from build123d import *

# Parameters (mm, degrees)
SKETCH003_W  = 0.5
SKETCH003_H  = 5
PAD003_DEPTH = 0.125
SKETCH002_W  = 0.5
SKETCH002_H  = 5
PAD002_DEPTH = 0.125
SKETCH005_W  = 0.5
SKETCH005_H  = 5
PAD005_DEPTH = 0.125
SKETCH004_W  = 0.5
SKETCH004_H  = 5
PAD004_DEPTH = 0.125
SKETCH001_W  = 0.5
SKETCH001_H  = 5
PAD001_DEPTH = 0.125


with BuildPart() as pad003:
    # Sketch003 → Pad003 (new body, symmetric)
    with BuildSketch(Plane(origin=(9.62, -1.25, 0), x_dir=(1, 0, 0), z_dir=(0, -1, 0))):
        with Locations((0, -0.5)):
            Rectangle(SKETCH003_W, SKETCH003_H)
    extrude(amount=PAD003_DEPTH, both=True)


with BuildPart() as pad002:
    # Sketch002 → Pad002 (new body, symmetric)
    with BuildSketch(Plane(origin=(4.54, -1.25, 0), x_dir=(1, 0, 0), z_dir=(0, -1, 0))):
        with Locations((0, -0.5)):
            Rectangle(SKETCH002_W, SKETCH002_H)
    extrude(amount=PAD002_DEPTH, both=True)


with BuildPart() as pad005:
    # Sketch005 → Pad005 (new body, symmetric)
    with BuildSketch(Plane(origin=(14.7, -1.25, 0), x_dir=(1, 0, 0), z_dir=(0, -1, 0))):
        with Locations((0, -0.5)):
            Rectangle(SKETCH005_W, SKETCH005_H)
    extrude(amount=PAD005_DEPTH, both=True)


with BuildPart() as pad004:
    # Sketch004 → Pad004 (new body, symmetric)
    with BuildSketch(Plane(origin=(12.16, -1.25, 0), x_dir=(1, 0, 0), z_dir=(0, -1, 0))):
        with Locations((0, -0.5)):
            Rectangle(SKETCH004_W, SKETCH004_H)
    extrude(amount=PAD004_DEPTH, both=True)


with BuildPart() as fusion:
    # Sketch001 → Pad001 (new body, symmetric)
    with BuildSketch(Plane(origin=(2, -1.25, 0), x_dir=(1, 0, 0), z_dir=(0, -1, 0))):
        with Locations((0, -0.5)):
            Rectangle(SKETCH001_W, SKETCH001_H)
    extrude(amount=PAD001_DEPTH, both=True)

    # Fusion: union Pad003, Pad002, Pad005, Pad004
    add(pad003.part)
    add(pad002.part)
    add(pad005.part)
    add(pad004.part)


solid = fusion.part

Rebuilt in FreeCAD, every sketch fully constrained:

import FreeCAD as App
import Part
import Sketcher
Q = App.Units.Quantity

doc = App.newDocument("Part")
body = doc.addObject("PartDesign::Body", "Body")

sketch1 = body.newObject("Sketcher::SketchObject", "Sketch")
sketch1.AttachmentSupport = (doc.getObject("XZ_Plane"), [""])
sketch1.MapMode = "FlatFace"
sketch1.AttachmentOffset = App.Placement(App.Vector(0, 0, 1.25), App.Rotation())
sketch1.addGeometry([
    Part.LineSegment(App.Vector(9.37, 2, 0), App.Vector(9.37, -3, 0)),
    Part.LineSegment(App.Vector(9.37, -3, 0), App.Vector(9.87, -3, 0)),
    Part.LineSegment(App.Vector(9.87, -3, 0), App.Vector(9.87, 2, 0)),
    Part.LineSegment(App.Vector(9.87, 2, 0), App.Vector(9.37, 2, 0)),
], False)
sketch1.addConstraint([
    Sketcher.Constraint("Coincident", 0, 2, 1, 1),
    Sketcher.Constraint("Coincident", 1, 2, 2, 1),
    Sketcher.Constraint("Coincident", 2, 2, 3, 1),
    Sketcher.Constraint("Coincident", 3, 2, 0, 1),
    Sketcher.Constraint("Vertical", 0),
    Sketcher.Constraint("Horizontal", 1),
    Sketcher.Constraint("Vertical", 2),
    Sketcher.Constraint("Horizontal", 3),
    Sketcher.Constraint("DistanceY", 0, 2, 0, 1, Q("5 mm")),
    Sketcher.Constraint("DistanceX", 1, 1, 1, 2, Q("0.5 mm")),
    Sketcher.Constraint("DistanceY", 0, 2, -1, 1, Q("3 mm")),
    Sketcher.Constraint("DistanceX", -1, 1, 0, 2, Q("9.37 mm")),
])
pad1 = body.newObject("PartDesign::Pad", "Pad")
pad1.Profile = sketch1
pad1.Length = 0.25
pad1.Midplane = True
body2 = doc.addObject("PartDesign::Body", "Body001")

sketch2 = body2.newObject("Sketcher::SketchObject", "Sketch001")
sketch2.AttachmentSupport = (doc.getObject("XZ_Plane001"), [""])
sketch2.MapMode = "FlatFace"
sketch2.AttachmentOffset = App.Placement(App.Vector(0, 0, 1.25), App.Rotation())
sketch2.addGeometry([
    Part.LineSegment(App.Vector(4.29, 2, 0), App.Vector(4.29, -3, 0)),
    Part.LineSegment(App.Vector(4.29, -3, 0), App.Vector(4.79, -3, 0)),
    Part.LineSegment(App.Vector(4.79, -3, 0), App.Vector(4.79, 2, 0)),
    Part.LineSegment(App.Vector(4.79, 2, 0), App.Vector(4.29, 2, 0)),
], False)
sketch2.addConstraint([
    Sketcher.Constraint("Coincident", 0, 2, 1, 1),
    Sketcher.Constraint("Coincident", 1, 2, 2, 1),
    Sketcher.Constraint("Coincident", 2, 2, 3, 1),
    Sketcher.Constraint("Coincident", 3, 2, 0, 1),
    Sketcher.Constraint("Vertical", 0),
    Sketcher.Constraint("Horizontal", 1),
    Sketcher.Constraint("Vertical", 2),
    Sketcher.Constraint("Horizontal", 3),
    Sketcher.Constraint("DistanceY", 0, 2, 0, 1, Q("5 mm")),
    Sketcher.Constraint("DistanceX", 1, 1, 1, 2, Q("0.5 mm")),
    Sketcher.Constraint("DistanceY", 0, 2, -1, 1, Q("3 mm")),
    Sketcher.Constraint("DistanceX", -1, 1, 0, 2, Q("4.29 mm")),
])
pad2 = body2.newObject("PartDesign::Pad", "Pad001")
pad2.Profile = sketch2
pad2.Length = 0.25
pad2.Midplane = True
body3 = doc.addObject("PartDesign::Body", "Body002")

sketch3 = body3.newObject("Sketcher::SketchObject", "Sketch002")
sketch3.AttachmentSupport = (doc.getObject("XZ_Plane002"), [""])
sketch3.MapMode = "FlatFace"
sketch3.AttachmentOffset = App.Placement(App.Vector(0, 0, 1.25), App.Rotation())
sketch3.addGeometry([
    Part.LineSegment(App.Vector(14.45, 2, 0), App.Vector(14.45, -3, 0)),
    Part.LineSegment(App.Vector(14.45, -3, 0), App.Vector(14.95, -3, 0)),
    Part.LineSegment(App.Vector(14.95, -3, 0), App.Vector(14.95, 2, 0)),
    Part.LineSegment(App.Vector(14.95, 2, 0), App.Vector(14.45, 2, 0)),
], False)
sketch3.addConstraint([
    Sketcher.Constraint("Coincident", 0, 2, 1, 1),
    Sketcher.Constraint("Coincident", 1, 2, 2, 1),
    Sketcher.Constraint("Coincident", 2, 2, 3, 1),
    Sketcher.Constraint("Coincident", 3, 2, 0, 1),
    Sketcher.Constraint("Vertical", 0),
    Sketcher.Constraint("Horizontal", 1),
    Sketcher.Constraint("Vertical", 2),
    Sketcher.Constraint("Horizontal", 3),
    Sketcher.Constraint("DistanceY", 0, 2, 0, 1, Q("5 mm")),
    Sketcher.Constraint("DistanceX", 1, 1, 1, 2, Q("0.5 mm")),
    Sketcher.Constraint("DistanceY", 0, 2, -1, 1, Q("3 mm")),
    Sketcher.Constraint("DistanceX", -1, 1, 0, 2, Q("14.45 mm")),
])
pad3 = body3.newObject("PartDesign::Pad", "Pad002")
pad3.Profile = sketch3
pad3.Length = 0.25
pad3.Midplane = True
body4 = doc.addObject("PartDesign::Body", "Body003")

sketch4 = body4.newObject("Sketcher::SketchObject", "Sketch003")
sketch4.AttachmentSupport = (doc.getObject("XZ_Plane003"), [""])
sketch4.MapMode = "FlatFace"
sketch4.AttachmentOffset = App.Placement(App.Vector(0, 0, 1.25), App.Rotation())
sketch4.addGeometry([
    Part.LineSegment(App.Vector(11.91, 2, 0), App.Vector(11.91, -3, 0)),
    Part.LineSegment(App.Vector(11.91, -3, 0), App.Vector(12.41, -3, 0)),
    Part.LineSegment(App.Vector(12.41, -3, 0), App.Vector(12.41, 2, 0)),
    Part.LineSegment(App.Vector(12.41, 2, 0), App.Vector(11.91, 2, 0)),
], False)
sketch4.addConstraint([
    Sketcher.Constraint("Coincident", 0, 2, 1, 1),
    Sketcher.Constraint("Coincident", 1, 2, 2, 1),
    Sketcher.Constraint("Coincident", 2, 2, 3, 1),
    Sketcher.Constraint("Coincident", 3, 2, 0, 1),
    Sketcher.Constraint("Vertical", 0),
    Sketcher.Constraint("Horizontal", 1),
    Sketcher.Constraint("Vertical", 2),
    Sketcher.Constraint("Horizontal", 3),
    Sketcher.Constraint("DistanceY", 0, 2, 0, 1, Q("5 mm")),
    Sketcher.Constraint("DistanceX", 1, 1, 1, 2, Q("0.5 mm")),
    Sketcher.Constraint("DistanceY", 0, 2, -1, 1, Q("3 mm")),
    Sketcher.Constraint("DistanceX", -1, 1, 0, 2, Q("11.91 mm")),
])
pad4 = body4.newObject("PartDesign::Pad", "Pad003")
pad4.Profile = sketch4
pad4.Length = 0.25
pad4.Midplane = True
body5 = doc.addObject("PartDesign::Body", "Body004")
body5.AllowCompound = True

sketch5 = body5.newObject("Sketcher::SketchObject", "Sketch004")
sketch5.AttachmentSupport = (doc.getObject("XZ_Plane004"), [""])
sketch5.MapMode = "FlatFace"
sketch5.AttachmentOffset = App.Placement(App.Vector(0, 0, 1.25), App.Rotation())
sketch5.addGeometry([
    Part.LineSegment(App.Vector(1.75, 2, 0), App.Vector(1.75, -3, 0)),
    Part.LineSegment(App.Vector(1.75, -3, 0), App.Vector(2.25, -3, 0)),
    Part.LineSegment(App.Vector(2.25, -3, 0), App.Vector(2.25, 2, 0)),
    Part.LineSegment(App.Vector(2.25, 2, 0), App.Vector(1.75, 2, 0)),
], False)
sketch5.addConstraint([
    Sketcher.Constraint("Coincident", 0, 2, 1, 1),
    Sketcher.Constraint("Coincident", 1, 2, 2, 1),
    Sketcher.Constraint("Coincident", 2, 2, 3, 1),
    Sketcher.Constraint("Coincident", 3, 2, 0, 1),
    Sketcher.Constraint("Vertical", 0),
    Sketcher.Constraint("Horizontal", 1),
    Sketcher.Constraint("Vertical", 2),
    Sketcher.Constraint("Horizontal", 3),
    Sketcher.Constraint("DistanceY", 0, 2, 0, 1, Q("5 mm")),
    Sketcher.Constraint("DistanceX", 1, 1, 1, 2, Q("0.5 mm")),
    Sketcher.Constraint("DistanceY", 0, 2, -1, 1, Q("3 mm")),
    Sketcher.Constraint("DistanceX", -1, 1, 0, 2, Q("1.75 mm")),
])
pad5 = body5.newObject("PartDesign::Pad", "Pad004")
pad5.Profile = sketch5
pad5.Length = 0.25
pad5.Midplane = True
doc.recompute()

boolean = body5.newObject("PartDesign::Boolean", "Boolean")
boolean.Type = "Fuse"
boolean.addObjects([body])
doc.recompute()

boolean2 = body5.newObject("PartDesign::Boolean", "Boolean001")
boolean2.Type = "Fuse"
boolean2.addObjects([body2])
doc.recompute()

boolean3 = body5.newObject("PartDesign::Boolean", "Boolean002")
boolean3.Type = "Fuse"
boolean3.addObjects([body3])
doc.recompute()

boolean4 = body5.newObject("PartDesign::Boolean", "Boolean003")
boolean4.Type = "Fuse"
boolean4.addObjects([body4])

doc.recompute()
